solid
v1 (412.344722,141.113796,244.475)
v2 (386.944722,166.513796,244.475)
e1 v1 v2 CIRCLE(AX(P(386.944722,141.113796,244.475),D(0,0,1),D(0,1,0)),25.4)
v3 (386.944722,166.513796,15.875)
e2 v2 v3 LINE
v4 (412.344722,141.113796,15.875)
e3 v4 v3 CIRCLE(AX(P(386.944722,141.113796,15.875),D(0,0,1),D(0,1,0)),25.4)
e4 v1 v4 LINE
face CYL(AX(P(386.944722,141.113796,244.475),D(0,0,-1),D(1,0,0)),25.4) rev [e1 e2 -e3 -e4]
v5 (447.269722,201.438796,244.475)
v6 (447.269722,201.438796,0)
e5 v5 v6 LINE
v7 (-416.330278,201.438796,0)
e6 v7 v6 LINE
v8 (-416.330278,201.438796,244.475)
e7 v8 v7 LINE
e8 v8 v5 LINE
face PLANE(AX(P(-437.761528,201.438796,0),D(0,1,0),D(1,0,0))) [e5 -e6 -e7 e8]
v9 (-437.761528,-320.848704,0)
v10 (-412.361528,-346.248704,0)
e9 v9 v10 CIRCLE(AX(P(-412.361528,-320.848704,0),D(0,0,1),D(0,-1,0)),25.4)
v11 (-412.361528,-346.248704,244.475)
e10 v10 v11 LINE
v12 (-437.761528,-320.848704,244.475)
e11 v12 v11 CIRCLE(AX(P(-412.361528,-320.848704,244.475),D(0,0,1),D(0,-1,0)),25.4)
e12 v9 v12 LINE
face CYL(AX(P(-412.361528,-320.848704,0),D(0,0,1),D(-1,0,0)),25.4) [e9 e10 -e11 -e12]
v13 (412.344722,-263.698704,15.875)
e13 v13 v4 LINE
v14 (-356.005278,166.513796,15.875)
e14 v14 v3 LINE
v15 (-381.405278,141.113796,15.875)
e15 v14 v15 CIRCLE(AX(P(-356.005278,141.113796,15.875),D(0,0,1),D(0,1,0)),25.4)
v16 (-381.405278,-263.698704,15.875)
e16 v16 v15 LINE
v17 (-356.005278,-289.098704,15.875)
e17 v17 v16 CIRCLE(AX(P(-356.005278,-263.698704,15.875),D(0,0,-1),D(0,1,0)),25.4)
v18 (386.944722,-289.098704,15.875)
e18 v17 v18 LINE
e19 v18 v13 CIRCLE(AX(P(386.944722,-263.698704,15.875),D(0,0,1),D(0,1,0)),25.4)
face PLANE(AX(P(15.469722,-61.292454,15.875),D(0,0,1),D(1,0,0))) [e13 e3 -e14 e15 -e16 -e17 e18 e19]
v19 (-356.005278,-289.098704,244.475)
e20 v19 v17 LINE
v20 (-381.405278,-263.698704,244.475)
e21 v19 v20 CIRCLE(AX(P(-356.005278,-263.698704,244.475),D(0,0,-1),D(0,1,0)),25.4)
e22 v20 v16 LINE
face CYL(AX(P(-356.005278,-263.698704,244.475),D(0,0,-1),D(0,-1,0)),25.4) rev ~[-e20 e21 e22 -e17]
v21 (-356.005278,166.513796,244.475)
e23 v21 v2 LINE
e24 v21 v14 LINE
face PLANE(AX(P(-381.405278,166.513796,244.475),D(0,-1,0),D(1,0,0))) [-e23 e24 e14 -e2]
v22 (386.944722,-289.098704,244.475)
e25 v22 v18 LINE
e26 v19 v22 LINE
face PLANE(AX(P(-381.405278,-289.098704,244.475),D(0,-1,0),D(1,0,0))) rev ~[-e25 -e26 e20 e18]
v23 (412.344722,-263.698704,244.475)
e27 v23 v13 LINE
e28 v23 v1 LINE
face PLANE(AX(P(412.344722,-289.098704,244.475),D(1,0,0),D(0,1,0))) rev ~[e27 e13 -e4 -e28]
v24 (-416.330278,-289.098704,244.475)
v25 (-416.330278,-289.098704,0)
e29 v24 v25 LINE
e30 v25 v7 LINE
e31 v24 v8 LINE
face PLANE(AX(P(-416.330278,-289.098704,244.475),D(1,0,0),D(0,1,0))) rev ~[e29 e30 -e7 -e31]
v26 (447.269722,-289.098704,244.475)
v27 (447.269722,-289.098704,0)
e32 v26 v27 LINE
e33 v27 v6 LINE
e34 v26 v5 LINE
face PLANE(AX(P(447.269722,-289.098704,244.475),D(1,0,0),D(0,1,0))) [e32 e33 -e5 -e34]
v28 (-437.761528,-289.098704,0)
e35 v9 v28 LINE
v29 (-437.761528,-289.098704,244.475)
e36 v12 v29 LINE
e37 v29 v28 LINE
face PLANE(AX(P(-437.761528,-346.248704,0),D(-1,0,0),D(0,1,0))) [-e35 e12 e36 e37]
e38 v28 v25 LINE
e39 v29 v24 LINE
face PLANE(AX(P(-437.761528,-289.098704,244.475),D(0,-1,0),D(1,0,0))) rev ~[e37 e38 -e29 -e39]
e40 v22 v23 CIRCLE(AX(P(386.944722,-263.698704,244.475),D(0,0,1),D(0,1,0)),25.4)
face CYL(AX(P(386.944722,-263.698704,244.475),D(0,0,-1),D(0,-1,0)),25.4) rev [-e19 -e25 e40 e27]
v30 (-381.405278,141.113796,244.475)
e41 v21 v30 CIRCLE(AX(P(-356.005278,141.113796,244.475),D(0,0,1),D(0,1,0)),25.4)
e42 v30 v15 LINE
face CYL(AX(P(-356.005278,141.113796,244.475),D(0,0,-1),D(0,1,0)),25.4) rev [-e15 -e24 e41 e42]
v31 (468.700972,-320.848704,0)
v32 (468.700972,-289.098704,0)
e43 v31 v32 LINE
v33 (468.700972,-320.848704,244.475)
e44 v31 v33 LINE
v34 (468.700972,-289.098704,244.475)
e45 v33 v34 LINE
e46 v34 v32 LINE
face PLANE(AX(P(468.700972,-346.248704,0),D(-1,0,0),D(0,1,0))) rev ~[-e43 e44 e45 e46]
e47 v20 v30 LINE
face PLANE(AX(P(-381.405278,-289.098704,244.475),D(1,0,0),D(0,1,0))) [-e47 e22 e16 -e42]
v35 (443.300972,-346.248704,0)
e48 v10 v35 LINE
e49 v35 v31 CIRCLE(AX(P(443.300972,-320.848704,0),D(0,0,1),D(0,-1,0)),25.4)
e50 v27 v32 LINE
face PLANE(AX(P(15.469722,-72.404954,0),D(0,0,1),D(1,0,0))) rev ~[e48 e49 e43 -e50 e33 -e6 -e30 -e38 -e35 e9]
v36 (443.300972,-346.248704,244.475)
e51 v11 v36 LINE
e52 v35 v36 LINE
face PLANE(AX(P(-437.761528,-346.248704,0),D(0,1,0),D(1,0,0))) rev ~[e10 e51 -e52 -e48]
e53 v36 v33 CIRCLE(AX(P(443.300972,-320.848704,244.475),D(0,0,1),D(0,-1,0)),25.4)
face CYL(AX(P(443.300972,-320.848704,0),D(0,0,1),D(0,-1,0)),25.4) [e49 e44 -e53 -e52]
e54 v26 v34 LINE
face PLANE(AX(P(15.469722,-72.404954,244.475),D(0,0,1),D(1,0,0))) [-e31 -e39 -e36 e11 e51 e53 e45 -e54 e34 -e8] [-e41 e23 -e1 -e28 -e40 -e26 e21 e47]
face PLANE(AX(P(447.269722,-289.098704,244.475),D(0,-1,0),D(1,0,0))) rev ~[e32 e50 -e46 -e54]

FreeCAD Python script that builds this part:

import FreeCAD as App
import Part
import Sketcher
Q = App.Units.Quantity


def edges_at(feature, points):
    """Names of the edges that pass closest to the given points."""
    edges = feature.Shape.Edges
    near = lambda p: min(range(len(edges)), key=lambda i: edges[i].distToShape(Part.Vertex(*p))[0])
    return sorted({f"Edge{near(p) + 1}" for p in points})

doc = App.newDocument("Part")
body = doc.addObject("PartDesign::Body", "Body")

# Sketch on XY plane
sketch1 = doc.addObject("Sketcher::SketchObject", "Sketch")
body.addObject(sketch1)
sketch1.AttachmentSupport = (doc.XY_Plane, [""])
sketch1.MapMode = "FlatFace"
sketch1.addGeometry(Part.LineSegment(App.Vector(-438, 201, 0), App.Vector(-438, -346, 0)), False)
sketch1.addGeometry(Part.LineSegment(App.Vector(-438, -346, 0), App.Vector(469, -346, 0)), False)
sketch1.addGeometry(Part.LineSegment(App.Vector(469, -346, 0), App.Vector(469, 201, 0)), False)
sketch1.addGeometry(Part.LineSegment(App.Vector(469, 201, 0), App.Vector(-438, 201, 0)), False)
sketch1.addConstraint(Sketcher.Constraint("Coincident", 0, 2, 1, 1))
sketch1.addConstraint(Sketcher.Constraint("Coincident", 1, 2, 2, 1))
sketch1.addConstraint(Sketcher.Constraint("Coincident", 2, 2, 3, 1))
sketch1.addConstraint(Sketcher.Constraint("Coincident", 3, 2, 0, 1))
sketch1.addConstraint(Sketcher.Constraint("Vertical", 0))
sketch1.addConstraint(Sketcher.Constraint("Horizontal", 1))
sketch1.addConstraint(Sketcher.Constraint("Vertical", 2))
sketch1.addConstraint(Sketcher.Constraint("Horizontal", 3))
sketch1.addConstraint(Sketcher.Constraint("DistanceX", 1, 1, 1, 2, Q("35.6875 in")))
sketch1.addConstraint(Sketcher.Constraint("DistanceY", 0, 2, 0, 1, Q("21.5625 in")))
sketch1.addConstraint(Sketcher.Constraint("DistanceX", 0, 2, -1, 1, 437.761528))
sketch1.addConstraint(Sketcher.Constraint("DistanceY", 0, 2, -1, 1, 346.248704))
pad1 = doc.addObject("PartDesign::Pad", "Pad")
body.addObject(pad1)
pad1.Profile = sketch1
pad1.Length = Q("9.625 in")

# Sketch on XY plane
sketch2 = doc.addObject("Sketcher::SketchObject", "Sketch001")
body.addObject(sketch2)
sketch2.AttachmentSupport = (doc.XY_Plane, [""])
sketch2.MapMode = "FlatFace"
sketch2.AttachmentOffset = App.Placement(App.Vector(0, 0, 9.625 * 25.4), App.Rotation())
sketch2.addGeometry(Part.LineSegment(App.Vector(-438, 201, 0), App.Vector(-438, -289, 0)), False)
sketch2.addGeometry(Part.LineSegment(App.Vector(-438, -289, 0), App.Vector(-416, -289, 0)), False)
sketch2.addGeometry(Part.LineSegment(App.Vector(-416, -289, 0), App.Vector(-416, 201, 0)), False)
sketch2.addGeometry(Part.LineSegment(App.Vector(-416, 201, 0), App.Vector(-438, 201, 0)), False)
sketch2.addGeometry(Part.LineSegment(App.Vector(447, 201, 0), App.Vector(447, -289, 0)), False)
sketch2.addGeometry(Part.LineSegment(App.Vector(447, -289, 0), App.Vector(469, -289, 0)), False)
sketch2.addGeometry(Part.LineSegment(App.Vector(469, -289, 0), App.Vector(469, 201, 0)), False)
sketch2.addGeometry(Part.LineSegment(App.Vector(469, 201, 0), App.Vector(447, 201, 0)), False)
sketch2.addConstraint(Sketcher.Constraint("Coincident", 0, 2, 1, 1))
sketch2.addConstraint(Sketcher.Constraint("Coincident", 1, 2, 2, 1))
sketch2.addConstraint(Sketcher.Constraint("Coincident", 2, 2, 3, 1))
sketch2.addConstraint(Sketcher.Constraint("Coincident", 3, 2, 0, 1))
sketch2.addConstraint(Sketcher.Constraint("Coincident", 4, 2, 5, 1))
sketch2.addConstraint(Sketcher.Constraint("Coincident", 5, 2, 6, 1))
sketch2.addConstraint(Sketcher.Constraint("Coincident", 6, 2, 7, 1))
sketch2.addConstraint(Sketcher.Constraint("Coincident", 7, 2, 4, 1))
sketch2.addConstraint(Sketcher.Constraint("Vertical", 0))
sketch2.addConstraint(Sketcher.Constraint("Horizontal", 1))
sketch2.addConstraint(Sketcher.Constraint("Vertical", 2))
sketch2.addConstraint(Sketcher.Constraint("Horizontal", 3))
sketch2.addConstraint(Sketcher.Constraint("Vertical", 4))
sketch2.addConstraint(Sketcher.Constraint("Horizontal", 5))
sketch2.addConstraint(Sketcher.Constraint("Vertical", 6))
sketch2.addConstraint(Sketcher.Constraint("Horizontal", 7))
sketch2.addConstraint(Sketcher.Constraint("Horizontal", 1, 2, 4, 2))
sketch2.addConstraint(Sketcher.Constraint("Horizontal", 3, 2, 6, 2))
sketch2.addConstraint(Sketcher.Constraint("Equal", 3, 5))
sketch2.addConstraint(Sketcher.Constraint("DistanceX", 1, 2, 4, 2, Q("34 in")))
sketch2.addConstraint(Sketcher.Constraint("DistanceX", 1, 1, 1, 2, Q("0.84375 in")))
sketch2.addConstraint(Sketcher.Constraint("DistanceY", 0, 2, 0, 1, Q("19.3125 in")))
sketch2.addConstraint(Sketcher.Constraint("DistanceX", 0, 2, -1, 1, 437.761528))
sketch2.addConstraint(Sketcher.Constraint("DistanceY", 0, 2, -1, 1, 289.098704))
pocket1 = doc.addObject("PartDesign::Pocket", "Pocket")
body.addObject(pocket1)
pocket1.Profile = sketch2
pocket1.Type = "ThroughAll"
doc.recompute()

fillet = doc.addObject("PartDesign::Fillet", "Fillet")
body.addObject(fillet)
fillet.Base = (pocket1, edges_at(pocket1, [(-437.762, -346.249, 122.237), (468.701, -346.249, 122.237)]))
fillet.Radius = Q("1 in")

# Sketch on XY plane
sketch3 = doc.addObject("Sketcher::SketchObject", "Sketch002")
body.addObject(sketch3)
sketch3.AttachmentSupport = (doc.XY_Plane, [""])
sketch3.MapMode = "FlatFace"
sketch3.AttachmentOffset = App.Placement(App.Vector(0, 0, 9.625 * 25.4), App.Rotation())
sketch3.addGeometry(Part.LineSegment(App.Vector(-381, 167, 0), App.Vector(-381, -289, 0)), False)
sketch3.addGeometry(Part.LineSegment(App.Vector(-381, -289, 0), App.Vector(412, -289, 0)), False)
sketch3.addGeometry(Part.LineSegment(App.Vector(412, -289, 0), App.Vector(412, 167, 0)), False)
sketch3.addGeometry(Part.LineSegment(App.Vector(412, 167, 0), App.Vector(-381, 167, 0)), False)
sketch3.addConstraint(Sketcher.Constraint("Coincident", 0, 2, 1, 1))
sketch3.addConstraint(Sketcher.Constraint("Coincident", 1, 2, 2, 1))
sketch3.addConstraint(Sketcher.Constraint("Coincident", 2, 2, 3, 1))
sketch3.addConstraint(Sketcher.Constraint("Coincident", 3, 2, 0, 1))
sketch3.addConstraint(Sketcher.Constraint("Vertical", 0))
sketch3.addConstraint(Sketcher.Constraint("Horizontal", 1))
sketch3.addConstraint(Sketcher.Constraint("Vertical", 2))
sketch3.addConstraint(Sketcher.Constraint("Horizontal", 3))
sketch3.addConstraint(Sketcher.Constraint("DistanceX", 1, 1, 1, 2, Q("31.25 in")))
sketch3.addConstraint(Sketcher.Constraint("DistanceY", 0, 2, 0, 1, Q("17.9375 in")))
sketch3.addConstraint(Sketcher.Constraint("DistanceX", 0, 2, -1, 1, 381.405278))
sketch3.addConstraint(Sketcher.Constraint("DistanceY", 0, 2, -1, 1, 289.098704))
pocket2 = doc.addObject("PartDesign::Pocket", "Pocket001")
body.addObject(pocket2)
pocket2.Profile = sketch3
pocket2.Length = Q("9 in")
doc.recompute()

fillet2 = doc.addObject("PartDesign::Fillet", "Fillet001")
body.addObject(fillet2)
fillet2.Base = (pocket2, edges_at(pocket2, [
    (412.345, 166.514, 130.175),
    (-381.405, 166.514, 130.175),
    (-381.405, -289.099, 130.175),
    (412.345, -289.099, 130.175),
]))
fillet2.Radius = Q("1 in")

doc.recompute()
